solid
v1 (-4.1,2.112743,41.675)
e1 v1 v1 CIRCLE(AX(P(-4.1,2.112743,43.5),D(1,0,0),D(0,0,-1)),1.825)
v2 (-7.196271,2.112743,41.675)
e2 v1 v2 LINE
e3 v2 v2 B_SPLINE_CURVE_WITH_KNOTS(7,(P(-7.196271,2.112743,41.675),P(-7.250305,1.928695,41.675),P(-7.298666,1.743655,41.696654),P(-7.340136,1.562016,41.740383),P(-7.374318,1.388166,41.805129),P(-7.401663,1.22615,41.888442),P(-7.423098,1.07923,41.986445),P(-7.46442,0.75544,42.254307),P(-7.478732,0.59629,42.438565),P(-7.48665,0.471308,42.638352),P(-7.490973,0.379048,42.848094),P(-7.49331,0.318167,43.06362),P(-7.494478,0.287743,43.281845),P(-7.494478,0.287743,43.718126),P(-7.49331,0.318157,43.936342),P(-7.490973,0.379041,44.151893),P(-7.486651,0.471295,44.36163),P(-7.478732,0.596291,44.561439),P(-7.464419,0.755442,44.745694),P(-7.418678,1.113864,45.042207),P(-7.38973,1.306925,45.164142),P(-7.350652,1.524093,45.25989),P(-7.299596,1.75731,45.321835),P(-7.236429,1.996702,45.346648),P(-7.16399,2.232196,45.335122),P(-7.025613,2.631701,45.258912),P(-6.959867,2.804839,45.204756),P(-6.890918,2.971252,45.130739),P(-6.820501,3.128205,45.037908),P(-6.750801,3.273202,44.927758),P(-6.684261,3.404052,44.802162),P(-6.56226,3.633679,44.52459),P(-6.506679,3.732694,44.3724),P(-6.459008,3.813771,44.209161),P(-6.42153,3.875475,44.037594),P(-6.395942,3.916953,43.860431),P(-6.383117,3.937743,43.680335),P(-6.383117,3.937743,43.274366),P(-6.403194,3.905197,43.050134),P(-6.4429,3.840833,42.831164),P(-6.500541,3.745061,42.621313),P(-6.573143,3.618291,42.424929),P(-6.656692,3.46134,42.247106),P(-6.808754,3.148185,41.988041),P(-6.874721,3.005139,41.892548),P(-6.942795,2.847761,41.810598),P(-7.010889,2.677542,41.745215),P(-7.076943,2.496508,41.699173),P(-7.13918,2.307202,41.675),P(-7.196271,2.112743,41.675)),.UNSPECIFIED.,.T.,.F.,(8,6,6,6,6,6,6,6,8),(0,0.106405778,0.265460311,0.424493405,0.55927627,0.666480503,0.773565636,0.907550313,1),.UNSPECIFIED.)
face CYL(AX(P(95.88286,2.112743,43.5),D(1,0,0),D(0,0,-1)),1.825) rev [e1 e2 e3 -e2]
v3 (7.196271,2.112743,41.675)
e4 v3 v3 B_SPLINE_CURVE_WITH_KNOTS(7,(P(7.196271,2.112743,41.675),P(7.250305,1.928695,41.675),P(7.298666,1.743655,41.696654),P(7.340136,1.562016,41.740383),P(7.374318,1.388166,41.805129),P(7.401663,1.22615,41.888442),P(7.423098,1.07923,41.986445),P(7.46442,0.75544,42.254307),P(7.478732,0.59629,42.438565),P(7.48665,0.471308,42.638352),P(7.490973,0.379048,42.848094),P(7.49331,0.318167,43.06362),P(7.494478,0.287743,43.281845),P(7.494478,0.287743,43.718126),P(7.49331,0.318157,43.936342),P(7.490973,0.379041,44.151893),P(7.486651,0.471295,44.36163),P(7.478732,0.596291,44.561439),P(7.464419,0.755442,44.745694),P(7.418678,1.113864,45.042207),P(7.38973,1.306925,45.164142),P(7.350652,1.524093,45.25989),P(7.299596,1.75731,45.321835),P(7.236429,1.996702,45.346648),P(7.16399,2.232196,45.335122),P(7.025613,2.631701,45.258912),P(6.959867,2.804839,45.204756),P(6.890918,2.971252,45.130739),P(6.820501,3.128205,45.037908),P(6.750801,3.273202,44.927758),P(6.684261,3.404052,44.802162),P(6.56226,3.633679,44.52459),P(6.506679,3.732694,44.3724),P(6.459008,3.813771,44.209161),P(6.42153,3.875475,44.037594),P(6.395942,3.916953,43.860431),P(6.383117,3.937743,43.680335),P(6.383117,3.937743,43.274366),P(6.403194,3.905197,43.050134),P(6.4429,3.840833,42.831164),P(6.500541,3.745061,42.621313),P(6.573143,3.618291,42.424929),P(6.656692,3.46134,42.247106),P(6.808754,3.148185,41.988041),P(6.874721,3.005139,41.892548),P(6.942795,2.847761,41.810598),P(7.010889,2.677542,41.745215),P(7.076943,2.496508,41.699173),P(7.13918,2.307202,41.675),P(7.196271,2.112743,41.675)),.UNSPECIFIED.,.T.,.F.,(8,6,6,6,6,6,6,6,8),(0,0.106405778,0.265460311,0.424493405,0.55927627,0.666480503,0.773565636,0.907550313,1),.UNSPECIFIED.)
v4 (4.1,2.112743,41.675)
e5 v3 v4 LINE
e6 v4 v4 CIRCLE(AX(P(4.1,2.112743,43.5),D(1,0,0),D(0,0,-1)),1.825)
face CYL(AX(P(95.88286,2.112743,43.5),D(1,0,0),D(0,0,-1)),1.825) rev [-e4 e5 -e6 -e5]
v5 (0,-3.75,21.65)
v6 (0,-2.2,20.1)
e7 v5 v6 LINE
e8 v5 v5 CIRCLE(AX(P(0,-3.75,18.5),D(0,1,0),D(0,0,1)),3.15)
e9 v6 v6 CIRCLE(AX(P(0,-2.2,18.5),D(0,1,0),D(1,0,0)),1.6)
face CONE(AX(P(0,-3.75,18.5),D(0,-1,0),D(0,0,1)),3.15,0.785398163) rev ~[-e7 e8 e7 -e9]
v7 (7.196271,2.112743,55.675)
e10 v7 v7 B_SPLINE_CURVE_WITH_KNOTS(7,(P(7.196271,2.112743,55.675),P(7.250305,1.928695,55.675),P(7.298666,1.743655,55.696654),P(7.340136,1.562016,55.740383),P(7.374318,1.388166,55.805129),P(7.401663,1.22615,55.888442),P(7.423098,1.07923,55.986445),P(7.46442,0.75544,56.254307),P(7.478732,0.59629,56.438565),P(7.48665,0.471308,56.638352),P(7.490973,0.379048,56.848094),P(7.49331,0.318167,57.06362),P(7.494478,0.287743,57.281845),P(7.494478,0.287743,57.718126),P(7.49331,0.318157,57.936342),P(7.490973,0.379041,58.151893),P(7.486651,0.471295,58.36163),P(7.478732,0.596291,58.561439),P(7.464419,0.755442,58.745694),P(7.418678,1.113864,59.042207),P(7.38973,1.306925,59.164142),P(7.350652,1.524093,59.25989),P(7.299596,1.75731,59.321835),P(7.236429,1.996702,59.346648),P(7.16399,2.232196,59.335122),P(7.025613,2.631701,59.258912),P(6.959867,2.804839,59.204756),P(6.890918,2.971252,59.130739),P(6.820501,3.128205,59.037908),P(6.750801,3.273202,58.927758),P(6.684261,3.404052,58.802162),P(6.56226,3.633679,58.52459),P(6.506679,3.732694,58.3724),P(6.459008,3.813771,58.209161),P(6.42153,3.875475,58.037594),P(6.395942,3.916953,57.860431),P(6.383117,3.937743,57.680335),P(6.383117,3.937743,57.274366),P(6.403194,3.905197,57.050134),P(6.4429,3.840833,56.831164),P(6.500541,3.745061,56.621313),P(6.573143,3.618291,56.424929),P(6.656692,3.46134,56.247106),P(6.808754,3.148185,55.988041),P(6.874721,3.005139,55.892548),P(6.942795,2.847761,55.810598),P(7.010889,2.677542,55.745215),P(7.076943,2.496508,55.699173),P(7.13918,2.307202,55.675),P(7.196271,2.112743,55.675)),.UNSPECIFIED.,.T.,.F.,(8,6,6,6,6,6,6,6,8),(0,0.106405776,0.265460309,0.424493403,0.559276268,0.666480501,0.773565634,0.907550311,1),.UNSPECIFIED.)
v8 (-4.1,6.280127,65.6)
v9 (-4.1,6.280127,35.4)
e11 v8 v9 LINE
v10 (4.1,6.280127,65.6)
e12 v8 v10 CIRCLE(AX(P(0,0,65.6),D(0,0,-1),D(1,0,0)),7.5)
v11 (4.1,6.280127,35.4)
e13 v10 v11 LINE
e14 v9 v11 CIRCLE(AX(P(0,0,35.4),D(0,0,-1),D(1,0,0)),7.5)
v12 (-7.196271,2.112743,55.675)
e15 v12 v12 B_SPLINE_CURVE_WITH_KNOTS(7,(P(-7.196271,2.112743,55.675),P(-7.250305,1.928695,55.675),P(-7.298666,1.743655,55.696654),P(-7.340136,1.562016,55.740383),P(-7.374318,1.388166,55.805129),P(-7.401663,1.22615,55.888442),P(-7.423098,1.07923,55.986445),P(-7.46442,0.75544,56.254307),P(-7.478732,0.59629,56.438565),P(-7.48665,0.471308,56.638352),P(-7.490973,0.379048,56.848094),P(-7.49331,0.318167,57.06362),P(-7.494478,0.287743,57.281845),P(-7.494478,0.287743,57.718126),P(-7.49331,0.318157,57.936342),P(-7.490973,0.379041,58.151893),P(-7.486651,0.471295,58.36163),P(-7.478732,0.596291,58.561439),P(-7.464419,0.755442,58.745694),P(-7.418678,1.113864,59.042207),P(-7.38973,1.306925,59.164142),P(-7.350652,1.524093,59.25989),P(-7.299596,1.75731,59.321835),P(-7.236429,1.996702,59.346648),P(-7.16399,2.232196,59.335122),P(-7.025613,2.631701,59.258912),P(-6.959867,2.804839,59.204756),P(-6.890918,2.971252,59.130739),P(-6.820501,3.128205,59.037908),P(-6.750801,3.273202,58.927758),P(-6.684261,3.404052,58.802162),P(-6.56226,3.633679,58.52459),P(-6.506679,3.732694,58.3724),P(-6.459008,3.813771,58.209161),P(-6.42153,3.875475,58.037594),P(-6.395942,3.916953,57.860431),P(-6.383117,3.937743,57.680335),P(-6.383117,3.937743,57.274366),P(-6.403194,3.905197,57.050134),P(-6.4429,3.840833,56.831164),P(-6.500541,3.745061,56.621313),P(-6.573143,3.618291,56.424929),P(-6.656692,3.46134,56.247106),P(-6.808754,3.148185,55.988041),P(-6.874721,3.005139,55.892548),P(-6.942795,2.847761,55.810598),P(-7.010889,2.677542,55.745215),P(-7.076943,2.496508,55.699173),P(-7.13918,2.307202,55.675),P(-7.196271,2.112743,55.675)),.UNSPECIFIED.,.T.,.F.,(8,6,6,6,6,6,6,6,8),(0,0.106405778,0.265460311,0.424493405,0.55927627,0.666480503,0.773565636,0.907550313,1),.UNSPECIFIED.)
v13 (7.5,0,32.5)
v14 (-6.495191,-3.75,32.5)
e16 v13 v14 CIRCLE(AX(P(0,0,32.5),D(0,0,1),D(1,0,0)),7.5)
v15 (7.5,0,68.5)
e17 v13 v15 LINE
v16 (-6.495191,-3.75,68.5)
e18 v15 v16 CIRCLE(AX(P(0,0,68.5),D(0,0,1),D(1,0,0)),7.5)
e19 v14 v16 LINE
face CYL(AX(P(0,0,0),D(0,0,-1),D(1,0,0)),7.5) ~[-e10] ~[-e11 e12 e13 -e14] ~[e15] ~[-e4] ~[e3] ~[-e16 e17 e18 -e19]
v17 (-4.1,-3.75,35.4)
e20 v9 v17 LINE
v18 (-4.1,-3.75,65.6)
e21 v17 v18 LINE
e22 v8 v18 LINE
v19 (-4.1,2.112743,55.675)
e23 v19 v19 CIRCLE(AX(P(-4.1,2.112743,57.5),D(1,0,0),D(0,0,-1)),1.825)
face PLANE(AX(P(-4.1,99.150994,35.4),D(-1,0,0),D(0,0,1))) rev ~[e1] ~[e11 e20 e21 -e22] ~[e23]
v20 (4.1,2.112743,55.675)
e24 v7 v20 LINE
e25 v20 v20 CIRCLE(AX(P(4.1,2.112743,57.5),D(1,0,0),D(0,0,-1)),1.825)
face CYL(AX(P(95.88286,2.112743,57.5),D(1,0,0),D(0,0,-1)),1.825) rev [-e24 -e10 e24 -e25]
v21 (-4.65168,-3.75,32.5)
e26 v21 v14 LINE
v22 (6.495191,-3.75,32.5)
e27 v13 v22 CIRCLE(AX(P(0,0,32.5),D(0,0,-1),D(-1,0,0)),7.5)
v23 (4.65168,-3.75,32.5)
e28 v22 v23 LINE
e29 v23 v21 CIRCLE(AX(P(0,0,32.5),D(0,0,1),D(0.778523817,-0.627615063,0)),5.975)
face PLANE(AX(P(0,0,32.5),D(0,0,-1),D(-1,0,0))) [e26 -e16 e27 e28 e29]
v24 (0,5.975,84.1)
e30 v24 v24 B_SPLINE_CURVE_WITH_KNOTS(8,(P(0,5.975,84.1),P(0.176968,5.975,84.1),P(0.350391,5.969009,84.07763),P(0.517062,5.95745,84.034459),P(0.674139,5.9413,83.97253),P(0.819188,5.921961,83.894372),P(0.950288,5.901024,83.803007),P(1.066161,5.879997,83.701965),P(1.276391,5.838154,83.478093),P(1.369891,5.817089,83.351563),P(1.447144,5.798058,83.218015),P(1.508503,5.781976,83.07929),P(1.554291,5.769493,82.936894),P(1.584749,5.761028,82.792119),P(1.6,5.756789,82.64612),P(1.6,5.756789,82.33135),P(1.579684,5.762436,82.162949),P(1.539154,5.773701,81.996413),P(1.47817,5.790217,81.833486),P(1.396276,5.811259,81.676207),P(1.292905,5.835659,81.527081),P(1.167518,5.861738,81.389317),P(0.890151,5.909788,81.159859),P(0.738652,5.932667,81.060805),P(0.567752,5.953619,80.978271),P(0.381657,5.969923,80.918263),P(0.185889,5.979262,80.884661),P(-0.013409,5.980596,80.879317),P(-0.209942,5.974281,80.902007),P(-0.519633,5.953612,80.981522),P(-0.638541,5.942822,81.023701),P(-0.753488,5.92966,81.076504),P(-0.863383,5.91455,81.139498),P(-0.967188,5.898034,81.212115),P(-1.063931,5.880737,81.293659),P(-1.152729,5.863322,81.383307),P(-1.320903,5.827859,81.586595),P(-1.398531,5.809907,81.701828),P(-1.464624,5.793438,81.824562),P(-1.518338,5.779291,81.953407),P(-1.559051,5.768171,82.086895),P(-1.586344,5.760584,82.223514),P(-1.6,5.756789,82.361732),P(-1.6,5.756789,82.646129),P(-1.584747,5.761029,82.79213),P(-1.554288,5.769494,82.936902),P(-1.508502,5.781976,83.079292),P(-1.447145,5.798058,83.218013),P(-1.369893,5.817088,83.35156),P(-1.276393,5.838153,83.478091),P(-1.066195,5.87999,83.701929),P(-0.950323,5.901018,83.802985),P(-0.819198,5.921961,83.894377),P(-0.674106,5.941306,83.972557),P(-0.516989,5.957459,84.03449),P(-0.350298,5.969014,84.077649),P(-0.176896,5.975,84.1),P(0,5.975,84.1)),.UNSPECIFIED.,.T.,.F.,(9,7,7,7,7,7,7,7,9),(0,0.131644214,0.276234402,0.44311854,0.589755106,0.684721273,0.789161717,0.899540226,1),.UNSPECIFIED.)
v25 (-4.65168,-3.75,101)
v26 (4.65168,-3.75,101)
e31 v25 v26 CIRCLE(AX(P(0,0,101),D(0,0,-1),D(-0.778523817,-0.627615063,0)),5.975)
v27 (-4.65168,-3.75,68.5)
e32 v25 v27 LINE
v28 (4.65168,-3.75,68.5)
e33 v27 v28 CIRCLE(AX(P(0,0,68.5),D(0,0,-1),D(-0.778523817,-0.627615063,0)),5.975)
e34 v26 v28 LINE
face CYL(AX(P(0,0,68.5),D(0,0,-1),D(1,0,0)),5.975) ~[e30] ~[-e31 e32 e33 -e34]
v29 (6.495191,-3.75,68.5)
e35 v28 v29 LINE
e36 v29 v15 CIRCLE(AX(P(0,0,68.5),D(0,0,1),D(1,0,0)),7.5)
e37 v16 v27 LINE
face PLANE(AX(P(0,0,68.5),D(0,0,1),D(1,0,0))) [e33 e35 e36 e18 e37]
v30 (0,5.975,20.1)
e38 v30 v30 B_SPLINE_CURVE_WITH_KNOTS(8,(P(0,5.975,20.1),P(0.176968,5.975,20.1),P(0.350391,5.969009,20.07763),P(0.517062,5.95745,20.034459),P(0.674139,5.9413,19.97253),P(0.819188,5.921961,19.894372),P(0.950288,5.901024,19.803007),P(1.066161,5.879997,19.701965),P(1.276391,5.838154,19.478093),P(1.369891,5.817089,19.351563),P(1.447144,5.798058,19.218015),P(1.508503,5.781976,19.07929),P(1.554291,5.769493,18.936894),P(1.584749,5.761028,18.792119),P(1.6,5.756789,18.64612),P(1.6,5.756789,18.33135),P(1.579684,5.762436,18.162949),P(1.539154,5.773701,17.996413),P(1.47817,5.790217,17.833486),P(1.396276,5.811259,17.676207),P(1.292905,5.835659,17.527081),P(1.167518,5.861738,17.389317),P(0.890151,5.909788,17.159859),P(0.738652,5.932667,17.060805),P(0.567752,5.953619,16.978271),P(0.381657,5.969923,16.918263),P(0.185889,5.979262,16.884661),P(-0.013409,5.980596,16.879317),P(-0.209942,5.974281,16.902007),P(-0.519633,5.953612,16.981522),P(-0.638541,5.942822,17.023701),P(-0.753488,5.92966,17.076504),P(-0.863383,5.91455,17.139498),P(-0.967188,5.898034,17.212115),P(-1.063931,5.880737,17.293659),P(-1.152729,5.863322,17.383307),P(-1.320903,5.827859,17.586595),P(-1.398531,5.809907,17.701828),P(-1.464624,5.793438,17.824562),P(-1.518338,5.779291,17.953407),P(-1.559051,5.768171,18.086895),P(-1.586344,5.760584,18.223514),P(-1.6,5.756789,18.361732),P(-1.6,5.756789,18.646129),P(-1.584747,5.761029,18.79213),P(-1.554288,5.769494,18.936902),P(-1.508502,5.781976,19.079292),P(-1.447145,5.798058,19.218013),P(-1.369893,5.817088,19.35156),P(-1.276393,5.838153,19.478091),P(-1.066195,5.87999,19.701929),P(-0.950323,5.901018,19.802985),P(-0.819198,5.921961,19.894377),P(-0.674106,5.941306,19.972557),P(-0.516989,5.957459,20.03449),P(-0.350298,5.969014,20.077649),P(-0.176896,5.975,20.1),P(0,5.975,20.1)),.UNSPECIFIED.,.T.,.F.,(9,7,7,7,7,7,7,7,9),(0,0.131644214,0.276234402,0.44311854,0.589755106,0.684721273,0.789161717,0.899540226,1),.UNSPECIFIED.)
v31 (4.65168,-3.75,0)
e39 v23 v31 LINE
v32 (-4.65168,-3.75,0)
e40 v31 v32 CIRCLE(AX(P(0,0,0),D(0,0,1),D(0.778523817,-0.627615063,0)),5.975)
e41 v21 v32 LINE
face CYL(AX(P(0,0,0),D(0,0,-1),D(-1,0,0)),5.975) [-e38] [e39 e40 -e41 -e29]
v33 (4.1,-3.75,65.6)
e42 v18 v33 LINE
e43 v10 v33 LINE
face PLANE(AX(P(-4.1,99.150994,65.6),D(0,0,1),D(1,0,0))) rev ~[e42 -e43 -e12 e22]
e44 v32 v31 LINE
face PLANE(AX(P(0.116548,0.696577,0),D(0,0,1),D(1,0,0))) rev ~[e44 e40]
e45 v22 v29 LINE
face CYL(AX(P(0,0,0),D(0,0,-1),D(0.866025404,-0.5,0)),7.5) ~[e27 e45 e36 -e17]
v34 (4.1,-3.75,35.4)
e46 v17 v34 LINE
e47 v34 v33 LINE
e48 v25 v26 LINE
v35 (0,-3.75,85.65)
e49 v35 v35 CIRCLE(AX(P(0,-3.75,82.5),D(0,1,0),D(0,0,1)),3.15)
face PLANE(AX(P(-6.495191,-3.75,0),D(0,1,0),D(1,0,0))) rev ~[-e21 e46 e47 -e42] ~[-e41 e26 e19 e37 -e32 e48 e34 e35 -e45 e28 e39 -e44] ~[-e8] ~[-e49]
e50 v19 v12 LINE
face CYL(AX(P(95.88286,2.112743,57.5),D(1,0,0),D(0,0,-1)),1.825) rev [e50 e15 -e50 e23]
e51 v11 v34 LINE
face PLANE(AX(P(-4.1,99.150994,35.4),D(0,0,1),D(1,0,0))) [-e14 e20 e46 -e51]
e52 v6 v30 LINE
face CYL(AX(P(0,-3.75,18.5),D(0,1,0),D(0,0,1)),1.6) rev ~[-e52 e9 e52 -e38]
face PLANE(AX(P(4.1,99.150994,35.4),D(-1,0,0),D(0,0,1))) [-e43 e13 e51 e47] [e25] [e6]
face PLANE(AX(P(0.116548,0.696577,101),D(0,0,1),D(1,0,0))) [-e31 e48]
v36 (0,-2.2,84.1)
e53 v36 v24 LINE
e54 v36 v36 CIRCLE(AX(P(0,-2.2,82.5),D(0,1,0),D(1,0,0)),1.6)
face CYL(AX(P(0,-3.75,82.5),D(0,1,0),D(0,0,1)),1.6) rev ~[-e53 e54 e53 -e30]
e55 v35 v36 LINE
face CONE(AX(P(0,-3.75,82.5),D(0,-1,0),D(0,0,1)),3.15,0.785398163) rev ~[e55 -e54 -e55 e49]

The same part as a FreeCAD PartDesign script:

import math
import FreeCAD as App
import Part
import Sketcher

V = App.Vector

doc = App.newDocument("Part")
body = doc.addObject("PartDesign::Body", "Body")

sketch1 = doc.addObject("Sketcher::SketchObject", "Sketch")
body.addObject(sketch1)
sketch1.AttachmentSupport = (doc.XY_Plane, [""])
sketch1.MapMode = "FlatFace"
sketch1.addGeometry([
    Part.ArcOfCircle(Part.Circle(V(0, 0, 0), V(0, 0, 1), 7.5), math.radians(0), math.radians(210)),
    Part.LineSegment(V(-6.5, -3.8, 0), V(6.5, -3.8, 0)),
    Part.ArcOfCircle(Part.Circle(V(0, 0, 0), V(0, 0, 1), 7.5), math.radians(-30), math.radians(0)),
], False)
sketch1.addConstraint([
    Sketcher.Constraint("Coincident", 0, 2, 1, 1),
    Sketcher.Constraint("Coincident", 1, 2, 2, 1),
    Sketcher.Constraint("Tangent", 2, 2, 0, 1),
    Sketcher.Constraint("Horizontal", 1),
    Sketcher.Constraint("Coincident", 0, 3, -1, 1),
    Sketcher.Constraint("Equal", 0, 2),
    Sketcher.Constraint("PointOnObject", 2, 2, -1),
    Sketcher.Constraint("Radius", 0, 7.5),
    Sketcher.Constraint("DistanceY", 0, 2, -1, 1, 3.75),
])
pad1 = doc.addObject("PartDesign::Pad", "Pad")
body.addObject(pad1)
pad1.Profile = sketch1
pad1.Length = 101

sketch2 = doc.addObject("Sketcher::SketchObject", "Sketch001")
body.addObject(sketch2)
sketch2.AttachmentSupport = (doc.XY_Plane, [""])
sketch2.MapMode = "FlatFace"
sketch2.AttachmentOffset = App.Placement(V(0, 0, 68.5), App.Rotation())
sketch2.addGeometry([
    Part.Circle(V(0, 0, 0), V(0, 0, 1), 8),
    Part.Circle(V(0, 0, 0), V(0, 0, 1), 6),
], False)
sketch2.addConstraint([
    Sketcher.Constraint("Coincident", 0, 3, -1, 1),
    Sketcher.Constraint("Coincident", 1, 3, -1, 1),
    Sketcher.Constraint("Diameter", 0, 15.0),
    Sketcher.Constraint("Diameter", 1, 11.95),
])
pocket1 = doc.addObject("PartDesign::Pocket", "Pocket")
body.addObject(pocket1)
pocket1.Profile = sketch2
pocket1.Length = 32.5
pocket1.Reversed = True

sketch3 = doc.addObject("Sketcher::SketchObject", "Sketch002")
body.addObject(sketch3)
sketch3.AttachmentSupport = (doc.XY_Plane, [""])
sketch3.MapMode = "FlatFace"
sketch3.addGeometry([
    Part.Circle(V(0, 0, 0), V(0, 0, 1), 8),
    Part.Circle(V(0, 0, 0), V(0, 0, 1), 6),
], False)
sketch3.addConstraint([
    Sketcher.Constraint("Coincident", 0, 3, -1, 1),
    Sketcher.Constraint("Coincident", 1, 3, -1, 1),
    Sketcher.Constraint("Diameter", 0, 15.0),
    Sketcher.Constraint("Diameter", 1, 11.95),
])
pocket2 = doc.addObject("PartDesign::Pocket", "Pocket001")
body.addObject(pocket2)
pocket2.Profile = sketch3
pocket2.Length = 32.5
pocket2.Reversed = True

sketch4 = doc.addObject("Sketcher::SketchObject", "Sketch003")
body.addObject(sketch4)
sketch4.AttachmentSupport = (doc.XZ_Plane, [""])
sketch4.MapMode = "FlatFace"
sketch4.AttachmentOffset = App.Placement(V(0, 0, 3.75), App.Rotation())
sketch4.addGeometry([
    Part.LineSegment(V(-4, 66, 0), V(-4, 35, 0)),
    Part.LineSegment(V(-4, 35, 0), V(4, 35, 0)),
    Part.LineSegment(V(4, 35, 0), V(4, 66, 0)),
    Part.LineSegment(V(4, 66, 0), V(-4, 66, 0)),
], False)
sketch4.addConstraint([
    Sketcher.Constraint("Coincident", 0, 2, 1, 1),
    Sketcher.Constraint("Coincident", 1, 2, 2, 1),
    Sketcher.Constraint("Coincident", 2, 2, 3, 1),
    Sketcher.Constraint("Coincident", 3, 2, 0, 1),
    Sketcher.Constraint("Vertical", 0),
    Sketcher.Constraint("Horizontal", 1),
    Sketcher.Constraint("Vertical", 2),
    Sketcher.Constraint("Horizontal", 3),
    Sketcher.Constraint("DistanceX", 1, 1, 1, 2, 8.2),
    Sketcher.Constraint("DistanceY", 0, 2, 0, 1, 30.2),
    Sketcher.Constraint("DistanceX", 0, 2, -1, 1, 4.1),
    Sketcher.Constraint("DistanceY", -1, 1, 0, 2, 35.4),
])
pocket3 = doc.addObject("PartDesign::Pocket", "Pocket002")
body.addObject(pocket3)
pocket3.Profile = sketch4
pocket3.Type = "ThroughAll"
pocket3.Midplane = True

sketch5 = doc.addObject("Sketcher::SketchObject", "Sketch004")
body.addObject(sketch5)
sketch5.AttachmentSupport = (doc.YZ_Plane, [""])
sketch5.MapMode = "FlatFace"
sketch5.AttachmentOffset = App.Placement(V(0, 0, -7.5), App.Rotation())
sketch5.addGeometry([
    Part.Circle(V(2.1, 43.5, 0), V(0, 0, 1), 1.8),
    Part.Circle(V(2.1, 57.5, 0), V(0, 0, 1), 1.8),
], False)
sketch5.addConstraint([
    Sketcher.Constraint("Equal", 0, 1),
    Sketcher.Constraint("Vertical", 0, 3, 1, 3),
    Sketcher.Constraint("Diameter", 0, 3.65),
    Sketcher.Constraint("DistanceY", 0, 3, 1, 3, 14.0),
    Sketcher.Constraint("DistanceY", -1, 1, 0, 3, 43.5),
    Sketcher.Constraint("DistanceX", -1, 1, 0, 3, 2.112743),
])
pocket4 = doc.addObject("PartDesign::Pocket", "Pocket003")
body.addObject(pocket4)
pocket4.Profile = sketch5
pocket4.Type = "ThroughAll"
pocket4.Midplane = True

sketch6 = doc.addObject("Sketcher::SketchObject", "Sketch005")
body.addObject(sketch6)
sketch6.AttachmentSupport = (doc.XZ_Plane, [""])
sketch6.MapMode = "FlatFace"
sketch6.AttachmentOffset = App.Placement(V(0, 0, 3.75), App.Rotation())
sketch6.addGeometry([
    Part.Circle(V(0, 82.5, 0), V(0, 0, 1), 1.6),
    Part.Circle(V(0, 18.5, 0), V(0, 0, 1), 1.6),
], False)
sketch6.addConstraint([
    Sketcher.Constraint("Equal", 0, 1),
    Sketcher.Constraint("PointOnObject", 0, 3, -2),
    Sketcher.Constraint("PointOnObject", 1, 3, -2),
    Sketcher.Constraint("Diameter", 0, 3.2),
    Sketcher.Constraint("DistanceY", 1, 3, 0, 3, 64.0),
    Sketcher.Constraint("DistanceY", -1, 1, 0, 3, 82.5),
])
doc.recompute()
hole = doc.addObject("PartDesign::Hole", "Hole")
body.addObject(hole)
hole.Profile = sketch6
hole.ThreadType = "None"
hole.Diameter = 3.2
hole.DepthType = "ThroughAll"
hole.HoleCutType = "Countersink"
hole.HoleCutDiameter = 6.3
hole.HoleCutCountersinkAngle = 90

doc.recompute()
